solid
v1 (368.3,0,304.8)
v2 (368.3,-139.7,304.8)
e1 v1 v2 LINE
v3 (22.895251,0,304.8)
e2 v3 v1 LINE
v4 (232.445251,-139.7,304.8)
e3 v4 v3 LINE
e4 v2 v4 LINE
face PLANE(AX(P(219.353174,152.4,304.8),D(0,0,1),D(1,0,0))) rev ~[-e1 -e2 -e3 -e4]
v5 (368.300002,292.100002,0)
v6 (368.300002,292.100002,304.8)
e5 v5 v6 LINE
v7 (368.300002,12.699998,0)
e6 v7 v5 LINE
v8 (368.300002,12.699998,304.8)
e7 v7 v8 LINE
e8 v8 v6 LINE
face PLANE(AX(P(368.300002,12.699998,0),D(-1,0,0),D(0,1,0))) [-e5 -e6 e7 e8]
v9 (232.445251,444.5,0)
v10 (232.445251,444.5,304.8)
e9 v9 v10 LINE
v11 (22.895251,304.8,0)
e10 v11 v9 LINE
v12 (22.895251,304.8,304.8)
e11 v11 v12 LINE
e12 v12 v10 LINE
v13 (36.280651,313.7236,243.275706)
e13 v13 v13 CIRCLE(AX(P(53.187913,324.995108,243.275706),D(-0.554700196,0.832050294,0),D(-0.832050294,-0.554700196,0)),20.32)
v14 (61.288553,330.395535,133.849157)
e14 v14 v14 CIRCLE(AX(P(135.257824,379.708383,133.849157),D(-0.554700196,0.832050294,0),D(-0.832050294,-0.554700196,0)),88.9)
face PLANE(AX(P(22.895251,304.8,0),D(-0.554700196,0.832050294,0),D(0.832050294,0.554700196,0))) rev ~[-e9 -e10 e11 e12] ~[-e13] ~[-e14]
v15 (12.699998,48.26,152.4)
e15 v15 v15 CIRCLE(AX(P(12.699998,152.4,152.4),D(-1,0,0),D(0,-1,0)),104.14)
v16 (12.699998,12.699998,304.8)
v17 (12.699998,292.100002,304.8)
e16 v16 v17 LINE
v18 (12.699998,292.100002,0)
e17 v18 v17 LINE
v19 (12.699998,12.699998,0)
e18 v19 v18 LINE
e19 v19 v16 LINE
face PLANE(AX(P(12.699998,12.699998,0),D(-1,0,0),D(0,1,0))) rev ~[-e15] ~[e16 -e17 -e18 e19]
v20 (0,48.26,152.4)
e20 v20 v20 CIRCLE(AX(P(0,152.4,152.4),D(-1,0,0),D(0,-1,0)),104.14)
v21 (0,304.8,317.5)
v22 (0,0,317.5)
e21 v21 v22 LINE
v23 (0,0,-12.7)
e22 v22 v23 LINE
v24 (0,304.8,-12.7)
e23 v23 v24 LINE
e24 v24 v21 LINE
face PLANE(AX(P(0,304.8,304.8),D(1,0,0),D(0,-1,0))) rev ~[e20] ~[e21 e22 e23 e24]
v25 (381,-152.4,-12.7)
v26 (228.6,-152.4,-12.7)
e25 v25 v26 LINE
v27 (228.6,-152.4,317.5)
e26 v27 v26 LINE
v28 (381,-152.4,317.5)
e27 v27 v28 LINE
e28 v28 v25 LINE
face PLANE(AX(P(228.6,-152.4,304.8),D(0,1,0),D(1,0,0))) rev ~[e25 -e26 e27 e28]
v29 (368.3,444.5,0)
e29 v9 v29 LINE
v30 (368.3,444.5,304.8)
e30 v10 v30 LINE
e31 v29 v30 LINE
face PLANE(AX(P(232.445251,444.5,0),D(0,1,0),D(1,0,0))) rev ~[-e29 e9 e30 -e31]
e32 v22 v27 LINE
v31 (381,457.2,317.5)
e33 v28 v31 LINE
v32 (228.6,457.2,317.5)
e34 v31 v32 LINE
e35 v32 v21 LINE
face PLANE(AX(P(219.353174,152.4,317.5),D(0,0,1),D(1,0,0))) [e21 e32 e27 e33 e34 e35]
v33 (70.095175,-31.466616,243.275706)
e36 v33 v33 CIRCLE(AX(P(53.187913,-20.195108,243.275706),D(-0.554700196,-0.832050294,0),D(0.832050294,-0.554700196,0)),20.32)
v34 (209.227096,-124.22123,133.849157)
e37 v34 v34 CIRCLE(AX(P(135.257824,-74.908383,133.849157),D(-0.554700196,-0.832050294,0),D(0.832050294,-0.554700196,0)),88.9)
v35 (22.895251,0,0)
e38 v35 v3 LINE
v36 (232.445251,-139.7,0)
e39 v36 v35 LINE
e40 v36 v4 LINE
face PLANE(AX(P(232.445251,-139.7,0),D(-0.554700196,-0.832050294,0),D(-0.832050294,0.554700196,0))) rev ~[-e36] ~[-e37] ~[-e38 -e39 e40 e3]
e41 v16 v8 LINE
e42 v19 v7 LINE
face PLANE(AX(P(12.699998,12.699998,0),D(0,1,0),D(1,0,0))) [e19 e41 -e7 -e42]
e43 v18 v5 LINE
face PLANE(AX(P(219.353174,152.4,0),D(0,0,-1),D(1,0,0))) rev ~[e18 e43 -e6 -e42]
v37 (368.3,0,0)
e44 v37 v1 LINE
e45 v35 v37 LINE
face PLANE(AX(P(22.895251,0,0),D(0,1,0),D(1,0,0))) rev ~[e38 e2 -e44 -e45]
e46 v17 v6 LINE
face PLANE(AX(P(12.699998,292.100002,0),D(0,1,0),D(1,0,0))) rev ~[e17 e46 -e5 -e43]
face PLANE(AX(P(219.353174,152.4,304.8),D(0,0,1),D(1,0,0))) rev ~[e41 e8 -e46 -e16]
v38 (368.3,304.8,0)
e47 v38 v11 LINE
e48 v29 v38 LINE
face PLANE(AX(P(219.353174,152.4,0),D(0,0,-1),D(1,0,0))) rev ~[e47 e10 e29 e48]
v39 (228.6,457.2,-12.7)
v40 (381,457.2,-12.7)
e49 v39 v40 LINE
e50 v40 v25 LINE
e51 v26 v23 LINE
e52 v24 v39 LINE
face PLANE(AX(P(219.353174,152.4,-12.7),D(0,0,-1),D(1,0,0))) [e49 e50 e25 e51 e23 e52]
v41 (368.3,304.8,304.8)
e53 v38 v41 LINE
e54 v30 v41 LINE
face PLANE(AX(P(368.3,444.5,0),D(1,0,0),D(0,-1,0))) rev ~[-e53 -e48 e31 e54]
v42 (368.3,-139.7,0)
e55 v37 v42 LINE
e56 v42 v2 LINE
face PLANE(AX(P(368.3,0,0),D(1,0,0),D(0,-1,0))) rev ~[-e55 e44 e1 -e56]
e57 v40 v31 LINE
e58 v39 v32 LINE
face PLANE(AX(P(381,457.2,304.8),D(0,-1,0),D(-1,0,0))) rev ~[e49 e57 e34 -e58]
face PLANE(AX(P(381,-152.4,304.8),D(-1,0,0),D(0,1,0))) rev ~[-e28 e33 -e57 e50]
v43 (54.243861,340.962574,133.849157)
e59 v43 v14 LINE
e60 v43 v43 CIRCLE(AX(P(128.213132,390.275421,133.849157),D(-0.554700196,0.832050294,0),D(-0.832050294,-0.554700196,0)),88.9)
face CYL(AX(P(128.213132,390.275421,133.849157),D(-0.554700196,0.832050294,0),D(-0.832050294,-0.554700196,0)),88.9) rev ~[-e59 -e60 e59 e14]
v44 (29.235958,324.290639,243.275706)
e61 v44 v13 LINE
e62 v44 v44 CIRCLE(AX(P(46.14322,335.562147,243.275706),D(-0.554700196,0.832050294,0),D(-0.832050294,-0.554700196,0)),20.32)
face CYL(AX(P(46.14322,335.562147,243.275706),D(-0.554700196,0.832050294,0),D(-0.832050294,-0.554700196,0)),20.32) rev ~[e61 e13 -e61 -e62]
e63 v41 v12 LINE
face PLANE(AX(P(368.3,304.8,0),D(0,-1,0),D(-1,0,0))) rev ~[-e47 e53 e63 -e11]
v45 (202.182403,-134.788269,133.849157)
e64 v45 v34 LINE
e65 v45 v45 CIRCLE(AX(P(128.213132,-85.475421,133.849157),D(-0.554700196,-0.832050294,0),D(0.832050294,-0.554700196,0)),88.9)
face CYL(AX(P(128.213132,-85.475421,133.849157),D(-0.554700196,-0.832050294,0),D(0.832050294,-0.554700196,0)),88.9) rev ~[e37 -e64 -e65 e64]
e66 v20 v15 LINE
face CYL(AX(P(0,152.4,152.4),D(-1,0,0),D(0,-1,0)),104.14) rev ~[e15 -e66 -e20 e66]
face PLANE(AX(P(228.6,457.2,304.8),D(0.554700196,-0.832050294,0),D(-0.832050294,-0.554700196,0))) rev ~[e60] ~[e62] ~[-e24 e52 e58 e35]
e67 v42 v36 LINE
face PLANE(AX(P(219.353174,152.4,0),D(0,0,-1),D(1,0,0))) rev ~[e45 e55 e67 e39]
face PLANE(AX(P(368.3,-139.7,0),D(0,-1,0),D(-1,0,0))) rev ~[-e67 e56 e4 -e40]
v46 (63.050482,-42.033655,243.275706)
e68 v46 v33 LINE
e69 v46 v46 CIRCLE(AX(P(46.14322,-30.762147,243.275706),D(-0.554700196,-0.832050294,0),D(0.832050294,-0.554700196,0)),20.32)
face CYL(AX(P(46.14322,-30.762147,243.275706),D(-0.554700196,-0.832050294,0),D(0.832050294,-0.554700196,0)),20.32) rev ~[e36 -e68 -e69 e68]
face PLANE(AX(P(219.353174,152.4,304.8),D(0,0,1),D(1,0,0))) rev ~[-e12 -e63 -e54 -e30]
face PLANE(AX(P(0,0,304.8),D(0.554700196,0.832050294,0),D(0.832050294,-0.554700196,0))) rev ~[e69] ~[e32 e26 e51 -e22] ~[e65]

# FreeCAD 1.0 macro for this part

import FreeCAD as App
import Part
import Sketcher
Q = App.Units.Quantity

doc = App.newDocument("Part")
body = doc.addObject("PartDesign::Body", "Body")

sketch1 = body.newObject("Sketcher::SketchObject", "Sketch")
sketch1.AttachmentSupport = (doc.getObject("XY_Plane"), [""])
sketch1.MapMode = "FlatFace"
sketch1.addGeometry(Part.LineSegment(App.Vector(0, 305, 0), App.Vector(0, 0, 0)), False)
sketch1.addGeometry(Part.LineSegment(App.Vector(0, 0, 0), App.Vector(229, -152, 0)), False)
sketch1.addGeometry(Part.LineSegment(App.Vector(229, -152, 0), App.Vector(381, -152, 0)), False)
sketch1.addGeometry(Part.LineSegment(App.Vector(381, -152, 0), App.Vector(381, 457, 0)), False)
sketch1.addGeometry(Part.LineSegment(App.Vector(381, 457, 0), App.Vector(229, 457, 0)), False)
sketch1.addGeometry(Part.LineSegment(App.Vector(229, 457, 0), App.Vector(0, 305, 0)), False)
sketch1.addGeometry(Part.LineSegment(App.Vector(368, 305, 0), App.Vector(23, 305, 0)), False)
sketch1.addGeometry(Part.LineSegment(App.Vector(23, 305, 0), App.Vector(232, 444, 0)), False)
sketch1.addGeometry(Part.LineSegment(App.Vector(232, 444, 0), App.Vector(368, 444, 0)), False)
sketch1.addGeometry(Part.LineSegment(App.Vector(368, 444, 0), App.Vector(368, 305, 0)), False)
sketch1.addGeometry(Part.LineSegment(App.Vector(23, 0, 0), App.Vector(368, 0, 0)), False)
sketch1.addGeometry(Part.LineSegment(App.Vector(368, 0, 0), App.Vector(368, -140, 0)), False)
sketch1.addGeometry(Part.LineSegment(App.Vector(368, -140, 0), App.Vector(232, -140, 0)), False)
sketch1.addGeometry(Part.LineSegment(App.Vector(232, -140, 0), App.Vector(23, 0, 0)), False)
sketch1.addGeometry(Part.LineSegment(App.Vector(368, 13, 0), App.Vector(13, 13, 0)), False)
sketch1.addGeometry(Part.LineSegment(App.Vector(13, 13, 0), App.Vector(13, 292, 0)), False)
sketch1.addGeometry(Part.LineSegment(App.Vector(13, 292, 0), App.Vector(368, 292, 0)), False)
sketch1.addGeometry(Part.LineSegment(App.Vector(368, 292, 0), App.Vector(368, 13, 0)), False)
sketch1.addConstraint(Sketcher.Constraint("Coincident", 0, 2, 1, 1))
sketch1.addConstraint(Sketcher.Constraint("Coincident", 1, 2, 2, 1))
sketch1.addConstraint(Sketcher.Constraint("Coincident", 2, 2, 3, 1))
sketch1.addConstraint(Sketcher.Constraint("Coincident", 3, 2, 4, 1))
sketch1.addConstraint(Sketcher.Constraint("Coincident", 4, 2, 5, 1))
sketch1.addConstraint(Sketcher.Constraint("Coincident", 5, 2, 0, 1))
sketch1.addConstraint(Sketcher.Constraint("Coincident", 6, 2, 7, 1))
sketch1.addConstraint(Sketcher.Constraint("Coincident", 7, 2, 8, 1))
sketch1.addConstraint(Sketcher.Constraint("Coincident", 8, 2, 9, 1))
sketch1.addConstraint(Sketcher.Constraint("Coincident", 9, 2, 6, 1))
sketch1.addConstraint(Sketcher.Constraint("Coincident", 10, 2, 11, 1))
sketch1.addConstraint(Sketcher.Constraint("Coincident", 11, 2, 12, 1))
sketch1.addConstraint(Sketcher.Constraint("Coincident", 12, 2, 13, 1))
sketch1.addConstraint(Sketcher.Constraint("Coincident", 13, 2, 10, 1))
sketch1.addConstraint(Sketcher.Constraint("Coincident", 14, 2, 15, 1))
sketch1.addConstraint(Sketcher.Constraint("Coincident", 15, 2, 16, 1))
sketch1.addConstraint(Sketcher.Constraint("Coincident", 16, 2, 17, 1))
sketch1.addConstraint(Sketcher.Constraint("Coincident", 17, 2, 14, 1))
sketch1.addConstraint(Sketcher.Constraint("Vertical", 0))
sketch1.addConstraint(Sketcher.Constraint("Horizontal", 2))
sketch1.addConstraint(Sketcher.Constraint("Vertical", 3))
sketch1.addConstraint(Sketcher.Constraint("Horizontal", 4))
sketch1.addConstraint(Sketcher.Constraint("Horizontal", 6))
sketch1.addConstraint(Sketcher.Constraint("Horizontal", 8))
sketch1.addConstraint(Sketcher.Constraint("Vertical", 9))
sketch1.addConstraint(Sketcher.Constraint("Horizontal", 10))
sketch1.addConstraint(Sketcher.Constraint("Vertical", 11))
sketch1.addConstraint(Sketcher.Constraint("Horizontal", 12))
sketch1.addConstraint(Sketcher.Constraint("Horizontal", 14))
sketch1.addConstraint(Sketcher.Constraint("Vertical", 15))
sketch1.addConstraint(Sketcher.Constraint("Horizontal", 16))
sketch1.addConstraint(Sketcher.Constraint("Vertical", 17))
sketch1.addConstraint(Sketcher.Constraint("Coincident", 0, 2, -1, 1))
sketch1.addConstraint(Sketcher.Constraint("PointOnObject", 10, 2, -1))
sketch1.addConstraint(Sketcher.Constraint("Parallel", 5, 7))
sketch1.addConstraint(Sketcher.Constraint("Parallel", 1, 13))
sketch1.addConstraint(Sketcher.Constraint("Horizontal", 5, 2, 6, 2))
sketch1.addConstraint(Sketcher.Constraint("Vertical", 1, 2, 4, 2))
sketch1.addConstraint(Sketcher.Constraint("Vertical", 9, 2, 10, 2))
sketch1.addConstraint(Sketcher.Constraint("Vertical", 7, 2, 12, 2))
sketch1.addConstraint(Sketcher.Constraint("Vertical", 6, 2, 13, 2))
sketch1.addConstraint(Sketcher.Constraint("Vertical", 11, 2, 16, 2))
sketch1.addConstraint(Sketcher.Constraint("Equal", 9, 11))
sketch1.addConstraint(Sketcher.Constraint("DistanceX", 2, 1, 2, 2, Q("6 in")))
sketch1.addConstraint(Sketcher.Constraint("DistanceX", 14, 2, 14, 1, Q("14.0000001 in")))
sketch1.addConstraint(Sketcher.Constraint("DistanceY", 0, 2, 0, 1, Q("12 in")))
sketch1.addConstraint(Sketcher.Constraint("DistanceY", 3, 1, 3, 2, Q("24 in")))
sketch1.addConstraint(Sketcher.Constraint("DistanceY", 15, 1, 15, 2, Q("11.0000001 in")))
sketch1.addConstraint(Sketcher.Constraint("DistanceY", 9, 2, 9, 1, Q("5.5 in")))
sketch1.addConstraint(Sketcher.Constraint("DistanceX", -1, 1, 1, 2, Q("9 in")))
sketch1.addConstraint(Sketcher.Constraint("DistanceY", 12, 2, 14, 2, Q("5.9999999 in")))
sketch1.addConstraint(Sketcher.Constraint("DistanceX", -1, 1, 8, 2, Q("14.5 in")))
sketch1.addConstraint(Sketcher.Constraint("DistanceX", 6, 2, 6, 1, Q("345.404749 mm")))
pad1 = body.newObject("PartDesign::Pad", "Pad")
pad1.Profile = sketch1
pad1.Length = Q("12 in")

sketch2 = body.newObject("Sketcher::SketchObject", "Sketch001")
sketch2.AttachmentSupport = (doc.getObject("YZ_Plane"), [""])
sketch2.MapMode = "FlatFace"
sketch2.addGeometry(Part.Circle(App.Vector(152, 152, 0), App.Vector(0, 0, 1), 104), False)
sketch2.addConstraint(Sketcher.Constraint("Diameter", 0, Q("8.2 in")))
sketch2.addConstraint(Sketcher.Constraint("DistanceX", -1, 1, 0, 3, Q("6 in")))
sketch2.addConstraint(Sketcher.Constraint("DistanceY", -1, 1, 0, 3, Q("6 in")))
pocket1 = body.newObject("PartDesign::Pocket", "Pocket")
pocket1.Profile = sketch2
pocket1.Length = Q("0.4999999 in")
pocket1.Reversed = True

sketch3 = body.newObject("Sketcher::SketchObject", "Sketch002")
sketch3.Placement = App.Placement(App.Vector(-140.676923, 211.015385, 0), App.Rotation(App.Vector(-0.832050294, -0.554700196, 0), App.Vector(0, 0, 0.999999999), App.Vector(-0.554700196, 0.832050294, 0), "ZXY"))
sketch3.addGeometry(Part.Circle(App.Vector(-323, 134, 0), App.Vector(0, 0, 1), 89), False)
sketch3.addGeometry(Part.Circle(App.Vector(-225, 243, 0), App.Vector(0, 0, 1), 20), False)
sketch3.addConstraint(Sketcher.Constraint("Diameter", 0, Q("7 in")))
sketch3.addConstraint(Sketcher.Constraint("Diameter", 1, Q("1.6 in")))
sketch3.addConstraint(Sketcher.Constraint("DistanceX", 1, 3, -1, 1, Q("224.529869 mm")))
sketch3.addConstraint(Sketcher.Constraint("DistanceX", 0, 3, 1, 3, Q("98.635758 mm")))
sketch3.addConstraint(Sketcher.Constraint("DistanceY", 0, 3, 1, 3, Q("109.426549 mm")))
sketch3.addConstraint(Sketcher.Constraint("DistanceY", -1, 1, 0, 3, Q("133.849157 mm")))
pocket2 = body.newObject("PartDesign::Pocket", "Pocket001")
pocket2.Profile = sketch3
pocket2.Length = Q("0.5 in")

sketch4 = body.newObject("Sketcher::SketchObject", "Sketch003")
sketch4.Placement = App.Placement(App.Vector(0, 0, 0), App.Rotation(App.Vector(0.832050294, -0.554700196, 0), App.Vector(0, 0, 0.999999999), App.Vector(-0.554700196, -0.832050294, 0), "ZXY"))
sketch4.addGeometry(Part.Circle(App.Vector(154, 134, 0), App.Vector(0, 0, 1), 89), False)
sketch4.addGeometry(Part.Circle(App.Vector(55, 243, 0), App.Vector(0, 0, 1), 20), False)
sketch4.addConstraint(Sketcher.Constraint("Diameter", 0, Q("7 in")))
sketch4.addConstraint(Sketcher.Constraint("Diameter", 1, Q("1.6 in")))
sketch4.addConstraint(Sketcher.Constraint("DistanceX", -1, 1, 1, 3, Q("55.457249 mm")))
sketch4.addConstraint(Sketcher.Constraint("DistanceX", 1, 3, 0, 3, Q("98.635758 mm")))
sketch4.addConstraint(Sketcher.Constraint("DistanceY", 0, 3, 1, 3, Q("109.426549 mm")))
sketch4.addConstraint(Sketcher.Constraint("DistanceY", -1, 1, 0, 3, Q("133.849157 mm")))
pocket3 = body.newObject("PartDesign::Pocket", "Pocket002")
pocket3.Profile = sketch4
pocket3.Length = Q("0.5 in")

sketch5 = body.newObject("Sketcher::SketchObject", "Sketch004")
sketch5.AttachmentSupport = (doc.getObject("XY_Plane"), [""])
sketch5.MapMode = "FlatFace"
sketch5.addGeometry(Part.LineSegment(App.Vector(381, 457, 0), App.Vector(381, -152, 0)), False)
sketch5.addGeometry(Part.LineSegment(App.Vector(381, -152, 0), App.Vector(229, -152, 0)), False)
sketch5.addGeometry(Part.LineSegment(App.Vector(229, -152, 0), App.Vector(0, 0, 0)), False)
sketch5.addGeometry(Part.LineSegment(App.Vector(0, 0, 0), App.Vector(0, 305, 0)), False)
sketch5.addGeometry(Part.LineSegment(App.Vector(0, 305, 0), App.Vector(229, 457, 0)), False)
sketch5.addGeometry(Part.LineSegment(App.Vector(229, 457, 0), App.Vector(381, 457, 0)), False)
sketch5.addConstraint(Sketcher.Constraint("Coincident", 0, 2, 1, 1))
sketch5.addConstraint(Sketcher.Constraint("Coincident", 1, 2, 2, 1))
sketch5.addConstraint(Sketcher.Constraint("Coincident", 2, 2, 3, 1))
sketch5.addConstraint(Sketcher.Constraint("Coincident", 3, 2, 4, 1))
sketch5.addConstraint(Sketcher.Constraint("Coincident", 4, 2, 5, 1))
sketch5.addConstraint(Sketcher.Constraint("Coincident", 5, 2, 0, 1))
sketch5.addConstraint(Sketcher.Constraint("Vertical", 0))
sketch5.addConstraint(Sketcher.Constraint("Horizontal", 1))
sketch5.addConstraint(Sketcher.Constraint("Vertical", 3))
sketch5.addConstraint(Sketcher.Constraint("Horizontal", 5))
sketch5.addConstraint(Sketcher.Constraint("Coincident", 2, 2, -1, 1))
sketch5.addConstraint(Sketcher.Constraint("Vertical", 1, 2, 4, 2))
sketch5.addConstraint(Sketcher.Constraint("Equal", 2, 4))
sketch5.addConstraint(Sketcher.Constraint("DistanceX", 1, 2, 1, 1, Q("6 in")))
sketch5.addConstraint(Sketcher.Constraint("DistanceY", 0, 2, 0, 1, Q("24 in")))
sketch5.addConstraint(Sketcher.Constraint("DistanceY", 3, 1, 3, 2, Q("12 in")))
sketch5.addConstraint(Sketcher.Constraint("DistanceX", -1, 1, 0, 2, Q("15 in")))
pad2 = body.newObject("PartDesign::Pad", "Pad001")
pad2.Profile = sketch5
pad2.Length = Q("0.5 in")
pad2.Reversed = True

sketch6 = body.newObject("Sketcher::SketchObject", "Sketch005")
sketch6.AttachmentSupport = (doc.getObject("XY_Plane"), [""])
sketch6.MapMode = "FlatFace"
sketch6.AttachmentOffset = App.Placement(App.Vector(0, 0, 12 * 25.4), App.Rotation())
sketch6.addGeometry(Part.LineSegment(App.Vector(381, -152, 0), App.Vector(381, 457, 0)), False)
sketch6.addGeometry(Part.LineSegment(App.Vector(381, 457, 0), App.Vector(229, 457, 0)), False)
sketch6.addGeometry(Part.LineSegment(App.Vector(229, 457, 0), App.Vector(0, 305, 0)), False)
sketch6.addGeometry(Part.LineSegment(App.Vector(0, 305, 0), App.Vector(0, 0, 0)), False)
sketch6.addGeometry(Part.LineSegment(App.Vector(0, 0, 0), App.Vector(229, -152, 0)), False)
sketch6.addGeometry(Part.LineSegment(App.Vector(229, -152, 0), App.Vector(381, -152, 0)), False)
sketch6.addConstraint(Sketcher.Constraint("Coincident", 0, 2, 1, 1))
sketch6.addConstraint(Sketcher.Constraint("Coincident", 1, 2, 2, 1))
sketch6.addConstraint(Sketcher.Constraint("Coincident", 2, 2, 3, 1))
sketch6.addConstraint(Sketcher.Constraint("Coincident", 3, 2, 4, 1))
sketch6.addConstraint(Sketcher.Constraint("Coincident", 4, 2, 5, 1))
sketch6.addConstraint(Sketcher.Constraint("Coincident", 5, 2, 0, 1))
sketch6.addConstraint(Sketcher.Constraint("Vertical", 0))
sketch6.addConstraint(Sketcher.Constraint("Horizontal", 1))
sketch6.addConstraint(Sketcher.Constraint("Vertical", 3))
sketch6.addConstraint(Sketcher.Constraint("Horizontal", 5))
sketch6.addConstraint(Sketcher.Constraint("Coincident", 3, 2, -1, 1))
sketch6.addConstraint(Sketcher.Constraint("Vertical", 1, 2, 4, 2))
sketch6.addConstraint(Sketcher.Constraint("Equal", 2, 4))
sketch6.addConstraint(Sketcher.Constraint("DistanceX", 1, 2, 1, 1, Q("6 in")))
sketch6.addConstraint(Sketcher.Constraint("DistanceY", 0, 1, 0, 2, Q("24 in")))
sketch6.addConstraint(Sketcher.Constraint("DistanceY", 3, 2, 3, 1, Q("12 in")))
sketch6.addConstraint(Sketcher.Constraint("DistanceX", -1, 1, 0, 2, Q("15 in")))
pad3 = body.newObject("PartDesign::Pad", "Pad002")
pad3.Profile = sketch6
pad3.Length = Q("0.5 in")

doc.recompute()
